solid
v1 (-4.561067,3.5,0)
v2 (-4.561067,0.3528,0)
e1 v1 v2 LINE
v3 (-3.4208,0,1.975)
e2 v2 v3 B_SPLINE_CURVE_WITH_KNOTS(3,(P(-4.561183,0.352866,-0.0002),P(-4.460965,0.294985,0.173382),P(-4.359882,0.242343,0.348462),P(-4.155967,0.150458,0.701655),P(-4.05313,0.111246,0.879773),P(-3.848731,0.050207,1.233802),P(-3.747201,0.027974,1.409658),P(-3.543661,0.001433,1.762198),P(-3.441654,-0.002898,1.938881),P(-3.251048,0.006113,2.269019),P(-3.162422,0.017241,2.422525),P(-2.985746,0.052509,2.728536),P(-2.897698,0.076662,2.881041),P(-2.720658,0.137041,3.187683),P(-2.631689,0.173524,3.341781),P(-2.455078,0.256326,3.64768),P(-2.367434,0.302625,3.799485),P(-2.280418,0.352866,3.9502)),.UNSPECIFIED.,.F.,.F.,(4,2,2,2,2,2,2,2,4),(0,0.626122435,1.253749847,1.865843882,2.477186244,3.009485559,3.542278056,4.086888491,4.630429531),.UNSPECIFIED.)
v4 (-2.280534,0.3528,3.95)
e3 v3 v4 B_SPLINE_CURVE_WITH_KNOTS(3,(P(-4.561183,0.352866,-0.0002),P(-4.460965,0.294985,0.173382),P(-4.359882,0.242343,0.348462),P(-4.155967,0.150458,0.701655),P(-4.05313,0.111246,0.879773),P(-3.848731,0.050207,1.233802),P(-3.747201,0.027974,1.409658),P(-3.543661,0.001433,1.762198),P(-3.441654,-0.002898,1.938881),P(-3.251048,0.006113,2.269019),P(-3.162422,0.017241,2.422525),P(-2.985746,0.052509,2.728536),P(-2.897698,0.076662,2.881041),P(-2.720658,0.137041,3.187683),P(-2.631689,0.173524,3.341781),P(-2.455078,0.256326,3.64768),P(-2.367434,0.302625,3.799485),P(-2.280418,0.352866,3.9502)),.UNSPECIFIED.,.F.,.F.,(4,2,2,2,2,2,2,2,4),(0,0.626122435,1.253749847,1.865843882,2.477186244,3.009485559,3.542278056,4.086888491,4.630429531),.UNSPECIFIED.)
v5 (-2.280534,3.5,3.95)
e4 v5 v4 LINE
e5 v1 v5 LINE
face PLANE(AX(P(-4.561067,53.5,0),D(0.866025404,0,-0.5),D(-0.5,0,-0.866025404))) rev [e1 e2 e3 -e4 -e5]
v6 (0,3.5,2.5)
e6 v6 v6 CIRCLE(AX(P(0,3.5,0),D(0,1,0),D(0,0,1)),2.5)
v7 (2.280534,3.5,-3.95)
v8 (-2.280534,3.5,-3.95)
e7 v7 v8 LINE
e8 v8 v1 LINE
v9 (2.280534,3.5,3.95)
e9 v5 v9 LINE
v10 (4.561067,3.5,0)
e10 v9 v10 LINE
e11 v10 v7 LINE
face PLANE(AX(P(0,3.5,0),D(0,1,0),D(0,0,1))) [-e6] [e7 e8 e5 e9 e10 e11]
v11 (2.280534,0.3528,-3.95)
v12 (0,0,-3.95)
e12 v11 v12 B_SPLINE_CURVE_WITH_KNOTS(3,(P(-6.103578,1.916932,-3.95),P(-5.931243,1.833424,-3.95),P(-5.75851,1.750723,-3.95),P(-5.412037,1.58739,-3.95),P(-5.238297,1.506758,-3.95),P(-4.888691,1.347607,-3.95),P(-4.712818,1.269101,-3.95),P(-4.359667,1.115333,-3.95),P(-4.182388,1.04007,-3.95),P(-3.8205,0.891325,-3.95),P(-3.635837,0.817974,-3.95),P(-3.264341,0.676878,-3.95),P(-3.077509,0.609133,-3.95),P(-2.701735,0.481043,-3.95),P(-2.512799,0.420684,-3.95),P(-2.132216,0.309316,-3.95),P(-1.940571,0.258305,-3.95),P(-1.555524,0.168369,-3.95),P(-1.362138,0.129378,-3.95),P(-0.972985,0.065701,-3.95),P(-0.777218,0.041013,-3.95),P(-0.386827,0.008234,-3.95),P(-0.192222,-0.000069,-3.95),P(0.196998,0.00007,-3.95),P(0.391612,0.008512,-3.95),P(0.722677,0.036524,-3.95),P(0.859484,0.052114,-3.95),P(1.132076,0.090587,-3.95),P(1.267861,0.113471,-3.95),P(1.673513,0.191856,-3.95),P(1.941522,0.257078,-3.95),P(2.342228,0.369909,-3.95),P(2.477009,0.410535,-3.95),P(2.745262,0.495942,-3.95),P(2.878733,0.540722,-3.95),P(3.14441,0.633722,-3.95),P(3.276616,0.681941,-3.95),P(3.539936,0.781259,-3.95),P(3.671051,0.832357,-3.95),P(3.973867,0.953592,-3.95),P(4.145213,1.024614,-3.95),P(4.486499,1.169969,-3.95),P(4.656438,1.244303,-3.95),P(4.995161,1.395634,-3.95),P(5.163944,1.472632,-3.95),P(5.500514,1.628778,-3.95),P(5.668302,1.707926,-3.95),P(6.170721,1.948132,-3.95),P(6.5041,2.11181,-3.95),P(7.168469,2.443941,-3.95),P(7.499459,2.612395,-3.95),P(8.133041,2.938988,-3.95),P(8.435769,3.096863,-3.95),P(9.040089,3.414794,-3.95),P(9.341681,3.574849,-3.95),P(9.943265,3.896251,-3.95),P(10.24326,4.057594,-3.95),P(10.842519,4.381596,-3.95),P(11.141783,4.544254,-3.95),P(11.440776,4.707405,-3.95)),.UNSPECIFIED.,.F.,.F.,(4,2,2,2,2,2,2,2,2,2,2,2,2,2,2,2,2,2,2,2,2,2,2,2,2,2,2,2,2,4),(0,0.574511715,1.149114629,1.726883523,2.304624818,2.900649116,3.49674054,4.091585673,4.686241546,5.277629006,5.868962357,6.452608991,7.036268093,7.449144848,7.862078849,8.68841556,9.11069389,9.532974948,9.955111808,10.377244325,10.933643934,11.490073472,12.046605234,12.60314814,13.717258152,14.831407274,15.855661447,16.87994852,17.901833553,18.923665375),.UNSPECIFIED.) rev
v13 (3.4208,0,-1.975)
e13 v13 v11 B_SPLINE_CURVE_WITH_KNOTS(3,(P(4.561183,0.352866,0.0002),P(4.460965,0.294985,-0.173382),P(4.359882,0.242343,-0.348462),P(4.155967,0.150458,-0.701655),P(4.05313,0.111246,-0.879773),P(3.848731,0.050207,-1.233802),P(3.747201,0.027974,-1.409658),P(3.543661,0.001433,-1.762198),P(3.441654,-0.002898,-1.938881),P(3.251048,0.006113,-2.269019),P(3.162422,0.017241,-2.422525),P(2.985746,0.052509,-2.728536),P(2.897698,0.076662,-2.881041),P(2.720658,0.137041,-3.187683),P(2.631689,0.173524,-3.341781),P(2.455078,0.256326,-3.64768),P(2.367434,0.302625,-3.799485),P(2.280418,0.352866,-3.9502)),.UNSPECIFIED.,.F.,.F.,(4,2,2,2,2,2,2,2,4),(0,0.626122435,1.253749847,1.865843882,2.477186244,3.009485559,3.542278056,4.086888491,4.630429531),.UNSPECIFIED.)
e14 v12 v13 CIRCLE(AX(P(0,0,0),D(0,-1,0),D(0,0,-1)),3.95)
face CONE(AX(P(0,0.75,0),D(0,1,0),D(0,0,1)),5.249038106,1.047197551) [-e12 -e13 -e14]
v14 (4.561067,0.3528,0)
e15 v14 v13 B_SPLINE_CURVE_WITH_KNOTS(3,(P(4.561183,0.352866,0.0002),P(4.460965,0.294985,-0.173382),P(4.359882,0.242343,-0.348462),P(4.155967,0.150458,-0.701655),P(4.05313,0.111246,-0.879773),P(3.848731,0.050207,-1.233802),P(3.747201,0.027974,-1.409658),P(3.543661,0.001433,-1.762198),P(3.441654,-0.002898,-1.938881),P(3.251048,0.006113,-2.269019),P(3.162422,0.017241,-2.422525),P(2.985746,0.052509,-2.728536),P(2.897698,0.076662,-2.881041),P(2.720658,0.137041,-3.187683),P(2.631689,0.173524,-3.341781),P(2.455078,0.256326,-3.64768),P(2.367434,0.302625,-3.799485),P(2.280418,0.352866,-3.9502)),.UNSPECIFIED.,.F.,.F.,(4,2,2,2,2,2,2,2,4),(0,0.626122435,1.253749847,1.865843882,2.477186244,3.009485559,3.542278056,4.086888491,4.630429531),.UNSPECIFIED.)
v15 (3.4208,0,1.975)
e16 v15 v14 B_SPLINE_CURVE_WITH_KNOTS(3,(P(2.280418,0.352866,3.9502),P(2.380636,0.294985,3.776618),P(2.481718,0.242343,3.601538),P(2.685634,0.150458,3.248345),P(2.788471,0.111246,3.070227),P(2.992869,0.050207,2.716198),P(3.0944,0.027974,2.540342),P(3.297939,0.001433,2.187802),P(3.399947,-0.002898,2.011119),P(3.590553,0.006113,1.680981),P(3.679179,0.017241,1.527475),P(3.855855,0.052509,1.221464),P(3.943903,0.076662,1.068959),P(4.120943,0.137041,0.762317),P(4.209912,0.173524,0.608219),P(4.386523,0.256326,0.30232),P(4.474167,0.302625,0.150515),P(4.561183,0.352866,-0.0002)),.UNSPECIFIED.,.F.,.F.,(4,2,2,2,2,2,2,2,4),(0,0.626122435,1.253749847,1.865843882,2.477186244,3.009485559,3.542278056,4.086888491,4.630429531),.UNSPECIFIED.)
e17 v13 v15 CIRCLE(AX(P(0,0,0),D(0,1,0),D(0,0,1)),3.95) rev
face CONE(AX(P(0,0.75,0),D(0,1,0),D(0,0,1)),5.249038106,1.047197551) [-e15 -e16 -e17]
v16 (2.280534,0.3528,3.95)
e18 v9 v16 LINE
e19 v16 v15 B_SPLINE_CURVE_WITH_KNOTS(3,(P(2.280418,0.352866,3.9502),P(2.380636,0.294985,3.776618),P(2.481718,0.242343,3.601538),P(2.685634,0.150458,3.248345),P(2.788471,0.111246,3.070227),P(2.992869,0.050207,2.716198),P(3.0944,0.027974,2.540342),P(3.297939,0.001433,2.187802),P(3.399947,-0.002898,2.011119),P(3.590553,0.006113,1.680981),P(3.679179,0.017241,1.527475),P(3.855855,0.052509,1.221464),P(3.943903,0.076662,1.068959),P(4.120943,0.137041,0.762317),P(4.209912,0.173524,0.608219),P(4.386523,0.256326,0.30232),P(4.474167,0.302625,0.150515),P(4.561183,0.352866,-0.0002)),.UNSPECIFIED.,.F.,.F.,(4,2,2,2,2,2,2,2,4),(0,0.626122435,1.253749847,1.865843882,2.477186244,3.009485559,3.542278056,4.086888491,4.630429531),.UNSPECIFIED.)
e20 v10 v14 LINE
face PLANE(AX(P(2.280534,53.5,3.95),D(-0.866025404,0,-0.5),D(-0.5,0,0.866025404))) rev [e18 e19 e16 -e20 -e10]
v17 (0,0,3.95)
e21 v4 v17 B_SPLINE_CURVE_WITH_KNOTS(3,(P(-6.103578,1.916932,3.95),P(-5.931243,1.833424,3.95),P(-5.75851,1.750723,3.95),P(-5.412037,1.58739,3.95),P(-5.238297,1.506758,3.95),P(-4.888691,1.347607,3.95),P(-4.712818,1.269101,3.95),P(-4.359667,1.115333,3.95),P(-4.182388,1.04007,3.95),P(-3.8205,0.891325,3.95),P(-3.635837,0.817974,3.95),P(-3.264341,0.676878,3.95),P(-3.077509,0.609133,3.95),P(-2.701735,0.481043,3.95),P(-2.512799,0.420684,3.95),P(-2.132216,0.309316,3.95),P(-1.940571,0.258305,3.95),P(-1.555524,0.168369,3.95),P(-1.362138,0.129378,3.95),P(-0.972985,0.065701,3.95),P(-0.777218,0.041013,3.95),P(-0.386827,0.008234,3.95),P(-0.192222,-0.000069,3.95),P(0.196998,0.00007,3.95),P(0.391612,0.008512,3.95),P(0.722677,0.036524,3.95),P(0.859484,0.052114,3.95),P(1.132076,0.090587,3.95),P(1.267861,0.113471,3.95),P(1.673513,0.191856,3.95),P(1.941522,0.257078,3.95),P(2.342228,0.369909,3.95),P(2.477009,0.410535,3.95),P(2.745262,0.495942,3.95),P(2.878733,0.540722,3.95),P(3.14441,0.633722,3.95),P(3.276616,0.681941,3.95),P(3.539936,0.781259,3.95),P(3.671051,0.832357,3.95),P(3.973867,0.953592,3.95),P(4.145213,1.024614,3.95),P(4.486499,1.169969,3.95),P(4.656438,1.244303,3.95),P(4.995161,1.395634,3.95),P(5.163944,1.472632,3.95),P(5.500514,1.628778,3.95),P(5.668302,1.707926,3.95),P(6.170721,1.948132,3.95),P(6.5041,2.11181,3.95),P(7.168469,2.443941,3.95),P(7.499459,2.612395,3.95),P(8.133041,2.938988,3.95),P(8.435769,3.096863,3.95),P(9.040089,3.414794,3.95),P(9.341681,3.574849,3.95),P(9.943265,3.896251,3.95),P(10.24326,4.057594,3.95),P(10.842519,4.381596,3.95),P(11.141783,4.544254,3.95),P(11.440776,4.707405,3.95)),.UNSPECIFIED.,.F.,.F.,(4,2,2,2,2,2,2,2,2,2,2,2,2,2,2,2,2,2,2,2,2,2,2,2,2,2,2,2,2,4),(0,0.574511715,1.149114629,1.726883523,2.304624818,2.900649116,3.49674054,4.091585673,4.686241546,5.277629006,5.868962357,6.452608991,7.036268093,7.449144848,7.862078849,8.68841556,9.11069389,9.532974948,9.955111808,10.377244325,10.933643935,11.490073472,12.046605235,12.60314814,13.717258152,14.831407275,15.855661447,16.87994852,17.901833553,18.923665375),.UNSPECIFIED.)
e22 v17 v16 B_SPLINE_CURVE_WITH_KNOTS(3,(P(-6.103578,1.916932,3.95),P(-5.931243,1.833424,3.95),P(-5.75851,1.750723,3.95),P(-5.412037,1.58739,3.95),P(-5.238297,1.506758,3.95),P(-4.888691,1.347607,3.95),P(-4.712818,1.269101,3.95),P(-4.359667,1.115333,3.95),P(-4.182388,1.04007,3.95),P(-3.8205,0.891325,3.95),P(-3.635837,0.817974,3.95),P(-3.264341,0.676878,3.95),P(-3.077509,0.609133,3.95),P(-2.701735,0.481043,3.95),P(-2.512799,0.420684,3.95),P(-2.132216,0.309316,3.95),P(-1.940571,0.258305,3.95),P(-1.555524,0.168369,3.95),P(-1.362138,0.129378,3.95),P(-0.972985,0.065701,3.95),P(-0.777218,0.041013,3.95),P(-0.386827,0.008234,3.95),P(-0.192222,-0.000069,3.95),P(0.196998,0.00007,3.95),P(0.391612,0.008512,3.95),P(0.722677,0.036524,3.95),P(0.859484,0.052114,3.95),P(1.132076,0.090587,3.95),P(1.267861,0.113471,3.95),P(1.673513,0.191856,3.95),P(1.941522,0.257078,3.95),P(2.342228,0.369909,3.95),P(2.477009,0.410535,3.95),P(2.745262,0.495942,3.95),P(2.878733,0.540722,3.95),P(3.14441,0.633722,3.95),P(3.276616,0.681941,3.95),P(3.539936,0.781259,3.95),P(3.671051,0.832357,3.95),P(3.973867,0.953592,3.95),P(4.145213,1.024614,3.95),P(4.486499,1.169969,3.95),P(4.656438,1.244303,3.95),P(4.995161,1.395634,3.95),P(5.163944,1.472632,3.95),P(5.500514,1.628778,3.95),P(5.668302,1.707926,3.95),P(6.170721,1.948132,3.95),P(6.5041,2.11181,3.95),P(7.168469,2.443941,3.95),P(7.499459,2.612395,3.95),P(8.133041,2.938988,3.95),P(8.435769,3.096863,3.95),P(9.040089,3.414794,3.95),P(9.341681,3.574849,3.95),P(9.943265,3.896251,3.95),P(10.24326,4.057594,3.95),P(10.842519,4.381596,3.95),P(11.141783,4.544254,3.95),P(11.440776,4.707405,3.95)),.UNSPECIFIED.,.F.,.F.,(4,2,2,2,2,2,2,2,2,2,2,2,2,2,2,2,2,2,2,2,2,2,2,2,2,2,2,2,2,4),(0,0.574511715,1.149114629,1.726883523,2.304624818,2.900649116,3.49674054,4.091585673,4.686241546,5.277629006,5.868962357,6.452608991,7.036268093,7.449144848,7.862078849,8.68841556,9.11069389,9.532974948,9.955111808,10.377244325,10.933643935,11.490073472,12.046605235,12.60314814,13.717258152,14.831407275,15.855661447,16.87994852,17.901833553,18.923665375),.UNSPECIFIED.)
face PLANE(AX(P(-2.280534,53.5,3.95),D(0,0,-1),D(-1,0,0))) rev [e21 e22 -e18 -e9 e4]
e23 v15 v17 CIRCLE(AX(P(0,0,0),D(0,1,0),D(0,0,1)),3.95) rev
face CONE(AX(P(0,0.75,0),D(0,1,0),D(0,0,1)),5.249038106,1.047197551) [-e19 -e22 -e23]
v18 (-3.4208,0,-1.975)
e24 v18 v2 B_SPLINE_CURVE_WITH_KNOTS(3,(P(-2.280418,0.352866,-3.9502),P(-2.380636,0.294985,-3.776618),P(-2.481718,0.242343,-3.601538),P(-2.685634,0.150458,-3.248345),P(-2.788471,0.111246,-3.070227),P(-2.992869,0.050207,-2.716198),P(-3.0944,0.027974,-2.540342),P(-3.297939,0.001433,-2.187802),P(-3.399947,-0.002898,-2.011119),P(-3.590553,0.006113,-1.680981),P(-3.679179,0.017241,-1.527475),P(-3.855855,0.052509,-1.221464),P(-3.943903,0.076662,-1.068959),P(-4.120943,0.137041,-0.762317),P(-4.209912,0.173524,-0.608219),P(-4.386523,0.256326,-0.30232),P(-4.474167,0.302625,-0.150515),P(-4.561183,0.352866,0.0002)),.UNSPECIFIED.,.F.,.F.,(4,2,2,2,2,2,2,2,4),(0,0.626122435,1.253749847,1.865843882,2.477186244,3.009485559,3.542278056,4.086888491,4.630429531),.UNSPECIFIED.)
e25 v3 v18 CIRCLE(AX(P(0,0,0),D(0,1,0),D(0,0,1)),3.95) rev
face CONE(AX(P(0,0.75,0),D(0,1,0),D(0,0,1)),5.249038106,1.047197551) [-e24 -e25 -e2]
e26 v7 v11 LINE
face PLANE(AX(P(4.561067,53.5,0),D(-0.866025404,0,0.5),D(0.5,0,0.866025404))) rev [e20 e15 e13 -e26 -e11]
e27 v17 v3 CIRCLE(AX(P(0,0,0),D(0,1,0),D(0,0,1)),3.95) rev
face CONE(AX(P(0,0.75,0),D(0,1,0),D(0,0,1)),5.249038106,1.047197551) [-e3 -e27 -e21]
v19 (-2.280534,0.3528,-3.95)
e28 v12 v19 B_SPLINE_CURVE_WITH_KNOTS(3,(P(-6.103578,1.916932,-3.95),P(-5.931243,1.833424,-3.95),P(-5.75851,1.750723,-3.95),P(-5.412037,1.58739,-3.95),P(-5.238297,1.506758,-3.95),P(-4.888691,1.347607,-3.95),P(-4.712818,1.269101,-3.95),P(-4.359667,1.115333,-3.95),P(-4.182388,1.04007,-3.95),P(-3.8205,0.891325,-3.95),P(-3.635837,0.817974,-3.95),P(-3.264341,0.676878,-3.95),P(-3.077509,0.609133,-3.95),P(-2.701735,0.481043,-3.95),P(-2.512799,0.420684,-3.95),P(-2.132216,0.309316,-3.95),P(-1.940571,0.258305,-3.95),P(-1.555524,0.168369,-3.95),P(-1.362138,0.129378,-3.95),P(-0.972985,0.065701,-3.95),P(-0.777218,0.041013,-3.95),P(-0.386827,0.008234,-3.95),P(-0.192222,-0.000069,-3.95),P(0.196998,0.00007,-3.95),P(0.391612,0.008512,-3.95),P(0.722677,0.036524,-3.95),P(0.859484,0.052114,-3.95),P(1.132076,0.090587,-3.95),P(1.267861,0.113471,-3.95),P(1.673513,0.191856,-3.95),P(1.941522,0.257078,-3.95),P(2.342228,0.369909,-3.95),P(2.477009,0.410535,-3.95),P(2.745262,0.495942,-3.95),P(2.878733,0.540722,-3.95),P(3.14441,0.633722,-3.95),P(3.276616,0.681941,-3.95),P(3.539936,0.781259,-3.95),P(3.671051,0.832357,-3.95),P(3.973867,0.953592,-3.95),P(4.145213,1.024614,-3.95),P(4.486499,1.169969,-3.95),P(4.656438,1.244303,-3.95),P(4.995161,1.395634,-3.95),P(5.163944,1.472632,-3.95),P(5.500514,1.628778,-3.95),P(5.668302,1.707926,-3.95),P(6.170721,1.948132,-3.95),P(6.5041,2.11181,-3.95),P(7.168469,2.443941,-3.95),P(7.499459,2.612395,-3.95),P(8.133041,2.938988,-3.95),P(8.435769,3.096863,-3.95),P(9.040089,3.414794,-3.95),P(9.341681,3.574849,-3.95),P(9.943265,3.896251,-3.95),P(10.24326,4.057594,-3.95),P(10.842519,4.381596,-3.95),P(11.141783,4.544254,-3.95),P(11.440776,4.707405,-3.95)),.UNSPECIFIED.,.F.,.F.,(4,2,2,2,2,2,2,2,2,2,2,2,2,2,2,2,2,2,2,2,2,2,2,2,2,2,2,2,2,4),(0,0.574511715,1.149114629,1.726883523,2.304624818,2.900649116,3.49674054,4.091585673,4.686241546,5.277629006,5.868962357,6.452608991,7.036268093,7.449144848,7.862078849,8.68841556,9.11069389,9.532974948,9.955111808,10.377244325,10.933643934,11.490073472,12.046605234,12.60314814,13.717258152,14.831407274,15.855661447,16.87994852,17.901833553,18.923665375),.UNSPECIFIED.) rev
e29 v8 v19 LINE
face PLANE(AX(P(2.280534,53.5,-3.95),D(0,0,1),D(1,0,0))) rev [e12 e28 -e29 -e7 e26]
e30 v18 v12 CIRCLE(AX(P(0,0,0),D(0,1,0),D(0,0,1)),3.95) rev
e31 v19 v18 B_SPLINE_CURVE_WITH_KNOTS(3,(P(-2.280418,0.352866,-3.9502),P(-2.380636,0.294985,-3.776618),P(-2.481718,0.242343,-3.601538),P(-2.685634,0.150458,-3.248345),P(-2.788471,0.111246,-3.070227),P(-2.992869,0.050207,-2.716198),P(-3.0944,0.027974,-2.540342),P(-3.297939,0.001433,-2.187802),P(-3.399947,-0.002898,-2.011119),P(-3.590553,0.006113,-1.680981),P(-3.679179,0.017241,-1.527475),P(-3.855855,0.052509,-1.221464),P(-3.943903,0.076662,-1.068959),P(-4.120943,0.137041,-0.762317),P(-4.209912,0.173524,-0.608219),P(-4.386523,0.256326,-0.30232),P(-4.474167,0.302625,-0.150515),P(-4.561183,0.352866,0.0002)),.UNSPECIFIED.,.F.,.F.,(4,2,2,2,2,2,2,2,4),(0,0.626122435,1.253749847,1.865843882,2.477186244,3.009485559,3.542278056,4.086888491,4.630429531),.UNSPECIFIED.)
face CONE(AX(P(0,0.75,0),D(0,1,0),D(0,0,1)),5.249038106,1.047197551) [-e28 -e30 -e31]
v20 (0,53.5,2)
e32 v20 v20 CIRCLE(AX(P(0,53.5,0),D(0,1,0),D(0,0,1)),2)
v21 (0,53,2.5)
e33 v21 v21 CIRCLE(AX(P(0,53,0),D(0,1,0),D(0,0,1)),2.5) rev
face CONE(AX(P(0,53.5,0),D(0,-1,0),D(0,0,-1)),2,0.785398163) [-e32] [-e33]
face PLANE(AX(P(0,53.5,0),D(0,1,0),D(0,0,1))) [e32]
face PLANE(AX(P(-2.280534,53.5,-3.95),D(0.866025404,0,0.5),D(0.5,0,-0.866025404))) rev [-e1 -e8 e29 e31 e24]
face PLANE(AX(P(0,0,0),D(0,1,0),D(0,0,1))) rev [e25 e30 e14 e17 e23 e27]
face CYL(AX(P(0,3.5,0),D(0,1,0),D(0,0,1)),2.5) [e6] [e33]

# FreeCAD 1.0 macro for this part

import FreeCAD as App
import Part
import Sketcher
from FreeCAD import Vector
Q = App.Units.Quantity


def edges_at(feature, points):
    """Names of the edges that pass closest to the given points."""
    edges = feature.Shape.Edges
    near = lambda p: min(range(len(edges)), key=lambda i: edges[i].distToShape(Part.Vertex(*p))[0])
    return sorted({f"Edge{near(p) + 1}" for p in points})


def add_polygon(sketch, points):
    """Adds a closed chain of lines whose ends are joined by coincident constraints."""
    first, n = sketch.GeometryCount, len(points)
    for a, b in zip(points, points[1:] + points[:1]):
        sketch.addGeometry(Part.LineSegment(App.Vector(*a, 0), App.Vector(*b, 0)), False)
    for i in range(n):
        sketch.addConstraint(Sketcher.Constraint("Coincident", first + i, 2, first + (i + 1) % n, 1))

doc = App.newDocument("Part")
body = doc.addObject("PartDesign::Body", "Body")

sketch1 = body.newObject("Sketcher::SketchObject", "Sketch")
sketch1.AttachmentSupport = (doc.getObject("XZ_Plane"), [""])
sketch1.MapMode = "FlatFace"
add_polygon(sketch1, [(4.6, 0), (2.3, -4), (-2.3, -4), (-4.6, 0), (-2.3, 4), (2.3, 4)])
sketch1.addConstraint(Sketcher.Constraint("Horizontal", 1))
sketch1.addConstraint(Sketcher.Constraint("Horizontal", 4))
sketch1.addConstraint(Sketcher.Constraint("Symmetric", 0, 2, 3, 2, -1, 1))
sketch1.addConstraint(Sketcher.Constraint("Symmetric", 2, 2, 5, 2, -1, 1))
sketch1.addConstraint(Sketcher.Constraint("PointOnObject", 2, 2, -1))
sketch1.addConstraint(Sketcher.Constraint("Parallel", 2, 5))
sketch1.addConstraint(Sketcher.Constraint("Vertical", 1, 2, 3, 2))
sketch1.addConstraint(Sketcher.Constraint("Angle", 0, Q("-120 deg")))
sketch1.addConstraint(Sketcher.Constraint("DistanceY", 1, 2, 3, 2, 7.9))
sketch1.addConstraint(Sketcher.Constraint("DistanceX", 2, 2, 0, 2, 6.841601))
pad1 = body.newObject("PartDesign::Pad", "Pad")
pad1.Profile = sketch1
pad1.Length = 53.5
pad1.Reversed = True

sketch2 = body.newObject("Sketcher::SketchObject", "Sketch001")
sketch2.AttachmentSupport = (doc.getObject("XZ_Plane"), [""])
sketch2.MapMode = "FlatFace"
sketch2.AttachmentOffset = App.Placement(Vector(0, 0, -53.5), App.Rotation())
add_polygon(sketch2, [(-11, -10.4), (-11, 10.4), (11, 10.4), (11, -10.4)])
sketch2.addGeometry(Part.Circle(Vector(0, 0, 0), Vector(0, 0, 1), 2.5), False)
sketch2.addConstraint(Sketcher.Constraint("Vertical", 0))
sketch2.addConstraint(Sketcher.Constraint("Horizontal", 1))
sketch2.addConstraint(Sketcher.Constraint("Vertical", 2))
sketch2.addConstraint(Sketcher.Constraint("Horizontal", 3))
sketch2.addConstraint(Sketcher.Constraint("Coincident", 4, 3, -1, 1))
sketch2.addConstraint(Sketcher.Constraint("Symmetric", 0, 2, 2, 2, -1, 1))
sketch2.addConstraint(Sketcher.Constraint("Diameter", 4, 5.0))
sketch2.addConstraint(Sketcher.Constraint("DistanceX", 1, 1, 1, 2, 22.09))
sketch2.addConstraint(Sketcher.Constraint("DistanceY", 0, 1, 0, 2, 20.868))
pocket1 = body.newObject("PartDesign::Pocket", "Pocket")
pocket1.Profile = sketch2
pocket1.Length = 50
pocket1.Reversed = True

sketch3 = body.newObject("Sketcher::SketchObject", "Sketch002")
sketch3.AttachmentSupport = (doc.getObject("YZ_Plane"), [""])
sketch3.MapMode = "FlatFace"
add_polygon(sketch3, [(0.8, -5.2), (0, -4), (-0.8, -5.2)])
sketch3.addConstraint(Sketcher.Constraint("Horizontal", 2))
sketch3.addConstraint(Sketcher.Constraint("PointOnObject", 0, 2, -2))
sketch3.addConstraint(Sketcher.Constraint("Equal", 0, 1))
sketch3.addConstraint(Sketcher.Constraint("Angle", 0, Q("120 deg")))
sketch3.addConstraint(Sketcher.Constraint("DistanceX", 2, 1, 2, 2, 1.5))
sketch3.addConstraint(Sketcher.Constraint("DistanceY", 0, 2, -1, 1, 3.95))
groove = body.newObject("PartDesign::Groove", "Groove")
groove.Profile = sketch3
groove.ReferenceAxis = (sketch3, ["H_Axis"])
groove.Angle = 360
doc.recompute()

chamfer = body.newObject("PartDesign::Chamfer", "Chamfer")
chamfer.Base = (groove, edges_at(groove, [(0, 53.5, -2.5)]))
chamfer.Size = 0.5

doc.recompute()
